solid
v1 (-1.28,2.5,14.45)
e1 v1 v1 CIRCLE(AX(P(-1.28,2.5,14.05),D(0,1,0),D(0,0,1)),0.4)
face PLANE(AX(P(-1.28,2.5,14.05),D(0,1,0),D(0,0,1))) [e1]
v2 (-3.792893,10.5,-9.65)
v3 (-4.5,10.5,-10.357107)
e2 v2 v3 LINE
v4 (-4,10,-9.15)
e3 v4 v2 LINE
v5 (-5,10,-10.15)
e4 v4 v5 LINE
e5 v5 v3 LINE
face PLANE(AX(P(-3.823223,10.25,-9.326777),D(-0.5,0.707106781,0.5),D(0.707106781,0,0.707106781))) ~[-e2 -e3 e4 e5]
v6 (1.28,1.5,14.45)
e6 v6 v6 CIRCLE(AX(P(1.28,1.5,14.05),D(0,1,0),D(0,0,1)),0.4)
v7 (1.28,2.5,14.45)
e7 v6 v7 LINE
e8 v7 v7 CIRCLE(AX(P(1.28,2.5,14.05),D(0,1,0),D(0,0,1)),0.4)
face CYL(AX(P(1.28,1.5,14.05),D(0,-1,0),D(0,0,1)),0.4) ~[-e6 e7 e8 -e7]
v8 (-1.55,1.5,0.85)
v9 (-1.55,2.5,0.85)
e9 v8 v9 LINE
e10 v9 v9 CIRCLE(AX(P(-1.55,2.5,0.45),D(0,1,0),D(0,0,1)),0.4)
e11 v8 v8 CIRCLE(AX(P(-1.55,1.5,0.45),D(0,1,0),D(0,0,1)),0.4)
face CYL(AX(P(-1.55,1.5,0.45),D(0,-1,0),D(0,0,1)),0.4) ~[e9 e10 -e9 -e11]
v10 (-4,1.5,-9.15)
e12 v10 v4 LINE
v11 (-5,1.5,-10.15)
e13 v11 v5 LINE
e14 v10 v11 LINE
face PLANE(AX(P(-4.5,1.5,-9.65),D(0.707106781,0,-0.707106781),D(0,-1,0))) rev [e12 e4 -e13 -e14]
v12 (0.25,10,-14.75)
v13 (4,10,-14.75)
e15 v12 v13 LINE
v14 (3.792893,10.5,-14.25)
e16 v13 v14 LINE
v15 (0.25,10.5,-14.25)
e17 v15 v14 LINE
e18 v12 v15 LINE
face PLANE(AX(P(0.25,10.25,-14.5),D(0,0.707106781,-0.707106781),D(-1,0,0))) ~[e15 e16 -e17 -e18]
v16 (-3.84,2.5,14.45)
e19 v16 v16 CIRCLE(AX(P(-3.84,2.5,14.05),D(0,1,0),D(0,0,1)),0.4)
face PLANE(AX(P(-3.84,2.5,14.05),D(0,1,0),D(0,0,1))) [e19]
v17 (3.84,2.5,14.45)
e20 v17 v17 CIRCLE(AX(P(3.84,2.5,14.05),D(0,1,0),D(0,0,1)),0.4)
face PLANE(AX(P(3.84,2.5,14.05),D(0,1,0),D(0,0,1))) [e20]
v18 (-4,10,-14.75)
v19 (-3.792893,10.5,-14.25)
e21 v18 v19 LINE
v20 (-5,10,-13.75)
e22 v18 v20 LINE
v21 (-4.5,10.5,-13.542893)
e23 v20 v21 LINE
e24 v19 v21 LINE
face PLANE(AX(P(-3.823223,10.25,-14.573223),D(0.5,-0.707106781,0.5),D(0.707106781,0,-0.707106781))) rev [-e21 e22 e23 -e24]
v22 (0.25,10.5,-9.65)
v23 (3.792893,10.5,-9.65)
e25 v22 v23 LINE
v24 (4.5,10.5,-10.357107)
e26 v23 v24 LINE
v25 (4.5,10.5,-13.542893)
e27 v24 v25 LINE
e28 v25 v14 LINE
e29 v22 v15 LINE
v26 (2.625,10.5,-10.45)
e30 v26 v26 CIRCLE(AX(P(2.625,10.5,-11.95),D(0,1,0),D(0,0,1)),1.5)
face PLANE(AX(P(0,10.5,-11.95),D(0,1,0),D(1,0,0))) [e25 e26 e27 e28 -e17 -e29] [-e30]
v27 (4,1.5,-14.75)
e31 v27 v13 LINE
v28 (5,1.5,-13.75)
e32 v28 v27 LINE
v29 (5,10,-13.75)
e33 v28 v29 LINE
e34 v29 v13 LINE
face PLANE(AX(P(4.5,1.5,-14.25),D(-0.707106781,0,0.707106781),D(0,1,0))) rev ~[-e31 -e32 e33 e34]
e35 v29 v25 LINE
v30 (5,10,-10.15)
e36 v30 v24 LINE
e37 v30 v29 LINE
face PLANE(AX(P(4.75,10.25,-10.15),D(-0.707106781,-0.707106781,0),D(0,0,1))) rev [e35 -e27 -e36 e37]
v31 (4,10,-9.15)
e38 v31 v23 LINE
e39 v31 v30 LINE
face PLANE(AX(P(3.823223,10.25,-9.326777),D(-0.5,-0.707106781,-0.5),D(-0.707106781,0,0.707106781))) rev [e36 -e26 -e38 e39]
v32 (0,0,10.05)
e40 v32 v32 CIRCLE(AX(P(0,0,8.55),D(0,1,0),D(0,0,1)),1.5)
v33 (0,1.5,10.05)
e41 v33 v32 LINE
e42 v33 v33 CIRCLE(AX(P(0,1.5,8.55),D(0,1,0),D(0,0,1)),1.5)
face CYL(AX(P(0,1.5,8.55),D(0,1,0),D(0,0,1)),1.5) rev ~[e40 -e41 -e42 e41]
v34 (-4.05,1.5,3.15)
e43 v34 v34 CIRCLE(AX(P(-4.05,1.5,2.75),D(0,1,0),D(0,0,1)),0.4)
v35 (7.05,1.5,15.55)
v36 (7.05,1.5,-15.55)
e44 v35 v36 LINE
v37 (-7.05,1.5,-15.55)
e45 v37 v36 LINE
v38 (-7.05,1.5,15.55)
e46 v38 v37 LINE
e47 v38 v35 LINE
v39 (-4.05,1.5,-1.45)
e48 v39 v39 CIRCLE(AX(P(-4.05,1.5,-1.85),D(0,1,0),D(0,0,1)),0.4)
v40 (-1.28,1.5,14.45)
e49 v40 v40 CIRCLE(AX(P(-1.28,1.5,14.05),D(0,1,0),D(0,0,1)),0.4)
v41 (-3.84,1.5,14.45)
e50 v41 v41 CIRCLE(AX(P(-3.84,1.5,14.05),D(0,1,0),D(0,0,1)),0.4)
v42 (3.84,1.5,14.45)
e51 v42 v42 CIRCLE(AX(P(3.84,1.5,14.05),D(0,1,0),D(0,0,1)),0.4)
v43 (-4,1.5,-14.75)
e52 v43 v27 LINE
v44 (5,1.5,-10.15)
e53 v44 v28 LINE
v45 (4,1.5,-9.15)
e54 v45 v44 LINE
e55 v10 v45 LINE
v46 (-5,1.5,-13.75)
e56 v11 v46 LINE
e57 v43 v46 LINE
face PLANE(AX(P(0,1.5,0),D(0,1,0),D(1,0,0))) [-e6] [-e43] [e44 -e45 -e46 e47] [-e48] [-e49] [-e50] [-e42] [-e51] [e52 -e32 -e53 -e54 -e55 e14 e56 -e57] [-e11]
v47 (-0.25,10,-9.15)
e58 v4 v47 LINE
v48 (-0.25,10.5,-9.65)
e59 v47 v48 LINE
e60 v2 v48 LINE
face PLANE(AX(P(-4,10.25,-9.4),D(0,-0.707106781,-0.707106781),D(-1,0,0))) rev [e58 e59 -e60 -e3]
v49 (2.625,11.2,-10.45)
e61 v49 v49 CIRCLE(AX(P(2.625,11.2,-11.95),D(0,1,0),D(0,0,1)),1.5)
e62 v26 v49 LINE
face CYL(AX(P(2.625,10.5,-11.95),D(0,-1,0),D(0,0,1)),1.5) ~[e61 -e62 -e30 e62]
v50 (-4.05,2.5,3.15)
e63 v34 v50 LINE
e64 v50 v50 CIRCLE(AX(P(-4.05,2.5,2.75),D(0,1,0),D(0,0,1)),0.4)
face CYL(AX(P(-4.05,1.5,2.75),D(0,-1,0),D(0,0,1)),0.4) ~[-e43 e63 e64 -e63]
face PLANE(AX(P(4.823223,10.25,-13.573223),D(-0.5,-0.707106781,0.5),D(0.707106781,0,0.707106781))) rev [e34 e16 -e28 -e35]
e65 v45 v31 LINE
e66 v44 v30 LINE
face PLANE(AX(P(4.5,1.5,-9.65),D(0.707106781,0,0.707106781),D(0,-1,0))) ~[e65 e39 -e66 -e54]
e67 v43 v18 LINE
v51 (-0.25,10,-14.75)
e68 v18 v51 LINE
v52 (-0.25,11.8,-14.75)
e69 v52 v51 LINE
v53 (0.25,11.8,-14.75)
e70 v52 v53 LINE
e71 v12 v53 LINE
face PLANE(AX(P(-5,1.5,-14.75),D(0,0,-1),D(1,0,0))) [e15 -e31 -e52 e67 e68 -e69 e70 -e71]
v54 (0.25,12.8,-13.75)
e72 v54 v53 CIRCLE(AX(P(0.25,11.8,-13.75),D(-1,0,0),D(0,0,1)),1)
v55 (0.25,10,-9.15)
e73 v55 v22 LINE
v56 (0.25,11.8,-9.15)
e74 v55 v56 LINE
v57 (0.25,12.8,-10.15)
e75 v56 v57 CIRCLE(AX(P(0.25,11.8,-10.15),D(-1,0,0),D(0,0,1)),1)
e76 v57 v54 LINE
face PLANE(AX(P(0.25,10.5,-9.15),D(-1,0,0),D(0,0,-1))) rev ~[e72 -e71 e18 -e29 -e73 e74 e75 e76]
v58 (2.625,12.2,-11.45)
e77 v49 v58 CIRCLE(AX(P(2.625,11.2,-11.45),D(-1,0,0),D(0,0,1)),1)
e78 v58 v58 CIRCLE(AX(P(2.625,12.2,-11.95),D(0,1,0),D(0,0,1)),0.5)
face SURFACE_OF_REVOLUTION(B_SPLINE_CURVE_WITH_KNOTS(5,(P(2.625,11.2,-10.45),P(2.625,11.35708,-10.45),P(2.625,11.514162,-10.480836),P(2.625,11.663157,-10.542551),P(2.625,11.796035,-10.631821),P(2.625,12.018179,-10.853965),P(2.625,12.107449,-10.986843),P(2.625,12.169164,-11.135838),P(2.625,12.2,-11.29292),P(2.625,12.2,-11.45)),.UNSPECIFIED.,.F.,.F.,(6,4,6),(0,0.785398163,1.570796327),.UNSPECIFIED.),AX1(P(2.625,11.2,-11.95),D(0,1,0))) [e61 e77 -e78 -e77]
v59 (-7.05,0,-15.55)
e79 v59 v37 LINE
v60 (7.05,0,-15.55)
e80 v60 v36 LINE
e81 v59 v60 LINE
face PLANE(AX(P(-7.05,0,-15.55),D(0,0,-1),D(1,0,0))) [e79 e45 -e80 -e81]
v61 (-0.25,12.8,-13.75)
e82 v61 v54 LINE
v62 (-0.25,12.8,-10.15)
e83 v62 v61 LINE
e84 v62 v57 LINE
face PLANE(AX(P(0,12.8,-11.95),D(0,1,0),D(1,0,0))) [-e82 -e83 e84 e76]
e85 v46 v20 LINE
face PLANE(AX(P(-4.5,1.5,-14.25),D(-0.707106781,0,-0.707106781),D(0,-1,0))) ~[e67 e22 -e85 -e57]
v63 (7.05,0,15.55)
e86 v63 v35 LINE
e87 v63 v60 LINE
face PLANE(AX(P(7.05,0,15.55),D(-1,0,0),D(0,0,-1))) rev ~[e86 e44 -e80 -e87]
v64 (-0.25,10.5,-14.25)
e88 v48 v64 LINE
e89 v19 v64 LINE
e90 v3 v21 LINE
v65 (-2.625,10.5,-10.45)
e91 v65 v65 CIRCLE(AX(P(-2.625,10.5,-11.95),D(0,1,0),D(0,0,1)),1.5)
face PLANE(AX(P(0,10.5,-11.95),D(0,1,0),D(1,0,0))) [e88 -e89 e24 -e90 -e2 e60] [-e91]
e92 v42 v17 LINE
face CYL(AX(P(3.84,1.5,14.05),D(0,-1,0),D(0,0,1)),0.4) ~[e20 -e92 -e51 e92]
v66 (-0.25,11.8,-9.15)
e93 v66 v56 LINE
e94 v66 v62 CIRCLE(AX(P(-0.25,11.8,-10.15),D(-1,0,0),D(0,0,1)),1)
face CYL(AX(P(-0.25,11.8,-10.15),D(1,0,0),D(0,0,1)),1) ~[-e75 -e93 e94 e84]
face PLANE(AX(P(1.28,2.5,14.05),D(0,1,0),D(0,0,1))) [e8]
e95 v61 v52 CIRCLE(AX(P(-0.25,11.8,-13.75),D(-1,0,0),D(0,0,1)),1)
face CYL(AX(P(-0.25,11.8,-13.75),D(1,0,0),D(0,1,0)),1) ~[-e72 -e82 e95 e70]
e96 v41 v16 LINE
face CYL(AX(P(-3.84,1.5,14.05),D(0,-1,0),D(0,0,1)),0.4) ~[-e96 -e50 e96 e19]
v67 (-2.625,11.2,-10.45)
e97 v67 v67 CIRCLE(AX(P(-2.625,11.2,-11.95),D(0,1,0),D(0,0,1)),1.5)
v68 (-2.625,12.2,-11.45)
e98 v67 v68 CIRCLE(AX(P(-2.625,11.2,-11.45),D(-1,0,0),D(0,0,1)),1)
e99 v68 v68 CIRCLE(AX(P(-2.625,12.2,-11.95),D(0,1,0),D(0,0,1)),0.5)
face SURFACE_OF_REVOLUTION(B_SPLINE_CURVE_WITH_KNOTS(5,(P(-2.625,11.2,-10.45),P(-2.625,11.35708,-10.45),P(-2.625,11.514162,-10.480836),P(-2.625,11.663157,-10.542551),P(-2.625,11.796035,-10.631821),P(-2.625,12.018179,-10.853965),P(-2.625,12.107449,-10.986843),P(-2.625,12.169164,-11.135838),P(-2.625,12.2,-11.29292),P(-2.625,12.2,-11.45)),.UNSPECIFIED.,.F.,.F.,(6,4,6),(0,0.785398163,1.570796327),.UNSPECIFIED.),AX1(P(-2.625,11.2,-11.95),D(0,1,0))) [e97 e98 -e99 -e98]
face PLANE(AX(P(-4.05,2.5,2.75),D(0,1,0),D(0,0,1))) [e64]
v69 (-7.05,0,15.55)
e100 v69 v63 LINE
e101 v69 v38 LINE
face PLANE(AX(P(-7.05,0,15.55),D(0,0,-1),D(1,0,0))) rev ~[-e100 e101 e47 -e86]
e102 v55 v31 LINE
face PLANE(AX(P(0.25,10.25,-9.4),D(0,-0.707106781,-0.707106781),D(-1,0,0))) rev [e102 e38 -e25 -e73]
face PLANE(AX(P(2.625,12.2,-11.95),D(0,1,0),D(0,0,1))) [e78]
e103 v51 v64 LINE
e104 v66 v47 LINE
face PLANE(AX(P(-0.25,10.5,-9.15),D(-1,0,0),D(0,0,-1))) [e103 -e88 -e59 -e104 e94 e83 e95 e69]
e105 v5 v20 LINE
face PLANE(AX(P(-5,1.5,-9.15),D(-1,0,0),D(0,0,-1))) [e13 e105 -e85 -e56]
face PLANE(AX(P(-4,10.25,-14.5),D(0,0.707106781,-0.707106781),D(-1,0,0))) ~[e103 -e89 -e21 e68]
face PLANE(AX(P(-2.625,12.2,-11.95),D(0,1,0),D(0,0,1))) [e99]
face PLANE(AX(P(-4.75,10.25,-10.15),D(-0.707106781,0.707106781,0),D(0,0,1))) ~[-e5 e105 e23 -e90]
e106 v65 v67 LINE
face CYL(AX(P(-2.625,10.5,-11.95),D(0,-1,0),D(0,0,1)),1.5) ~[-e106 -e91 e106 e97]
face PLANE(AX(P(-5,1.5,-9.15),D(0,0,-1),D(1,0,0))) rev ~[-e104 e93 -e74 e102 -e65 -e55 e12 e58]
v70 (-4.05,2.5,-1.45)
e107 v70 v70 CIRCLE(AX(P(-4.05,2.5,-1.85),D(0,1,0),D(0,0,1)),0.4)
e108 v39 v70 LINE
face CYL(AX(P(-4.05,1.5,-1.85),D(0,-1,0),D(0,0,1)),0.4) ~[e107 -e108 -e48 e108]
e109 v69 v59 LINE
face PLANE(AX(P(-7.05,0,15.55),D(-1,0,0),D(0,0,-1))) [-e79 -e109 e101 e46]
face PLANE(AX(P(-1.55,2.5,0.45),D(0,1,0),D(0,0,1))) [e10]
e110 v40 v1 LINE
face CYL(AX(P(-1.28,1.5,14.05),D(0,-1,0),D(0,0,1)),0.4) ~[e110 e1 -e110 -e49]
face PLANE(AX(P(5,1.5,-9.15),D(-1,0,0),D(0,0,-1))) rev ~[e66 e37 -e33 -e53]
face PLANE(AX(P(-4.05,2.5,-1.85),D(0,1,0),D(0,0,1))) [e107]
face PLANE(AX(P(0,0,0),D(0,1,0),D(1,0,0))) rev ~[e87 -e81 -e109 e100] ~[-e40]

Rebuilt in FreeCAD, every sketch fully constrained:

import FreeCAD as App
import Part
import Sketcher
from FreeCAD import Vector


def edges_at(feature, points):
    """Names of the edges that pass closest to the given points."""
    edges = feature.Shape.Edges
    near = lambda p: min(range(len(edges)), key=lambda i: edges[i].distToShape(Part.Vertex(*p))[0])
    return sorted({f"Edge{near(p) + 1}" for p in points})

doc = App.newDocument("Part")
body = doc.addObject("PartDesign::Body", "Body")

# Sketch on XZ plane
sketch1 = body.newObject("Sketcher::SketchObject", "Sketch")
sketch1.AttachmentSupport = (doc.getObject("XZ_Plane"), [""])
sketch1.MapMode = "FlatFace"
sketch1.addGeometry([
    Part.LineSegment(Vector(-7, -16, 0), Vector(-7, 16, 0)),
    Part.LineSegment(Vector(-7, 16, 0), Vector(7, 16, 0)),
    Part.LineSegment(Vector(7, 16, 0), Vector(7, -16, 0)),
    Part.LineSegment(Vector(7, -16, 0), Vector(-7, -16, 0)),
], False)
sketch1.addConstraint([
    Sketcher.Constraint("Coincident", 0, 2, 1, 1),
    Sketcher.Constraint("Coincident", 1, 2, 2, 1),
    Sketcher.Constraint("Coincident", 2, 2, 3, 1),
    Sketcher.Constraint("Coincident", 3, 2, 0, 1),
    Sketcher.Constraint("Vertical", 0),
    Sketcher.Constraint("Horizontal", 1),
    Sketcher.Constraint("Vertical", 2),
    Sketcher.Constraint("Horizontal", 3),
    Sketcher.Constraint("Symmetric", 0, 2, 2, 2, -1, 1),
    Sketcher.Constraint("DistanceX", 1, 1, 1, 2, 14.1),
    Sketcher.Constraint("DistanceY", 0, 1, 0, 2, 31.1),
])
pad1 = body.newObject("PartDesign::Pad", "Pad")
pad1.Profile = sketch1
pad1.Length = 1.5
pad1.Reversed = True

# Sketch on XZ plane
sketch2 = body.newObject("Sketcher::SketchObject", "Sketch001")
sketch2.AttachmentSupport = (doc.getObject("XZ_Plane"), [""])
sketch2.MapMode = "FlatFace"
sketch2.AttachmentOffset = App.Placement(Vector(0, 0, -1.5), App.Rotation())
sketch2.addGeometry([
    Part.LineSegment(Vector(-5, -15, 0), Vector(-5, -9, 0)),
    Part.LineSegment(Vector(-5, -9, 0), Vector(5, -9, 0)),
    Part.LineSegment(Vector(5, -9, 0), Vector(5, -15, 0)),
    Part.LineSegment(Vector(5, -15, 0), Vector(-5, -15, 0)),
], False)
sketch2.addConstraint([
    Sketcher.Constraint("Coincident", 0, 2, 1, 1),
    Sketcher.Constraint("Coincident", 1, 2, 2, 1),
    Sketcher.Constraint("Coincident", 2, 2, 3, 1),
    Sketcher.Constraint("Coincident", 3, 2, 0, 1),
    Sketcher.Constraint("Vertical", 0),
    Sketcher.Constraint("Horizontal", 1),
    Sketcher.Constraint("Vertical", 2),
    Sketcher.Constraint("Horizontal", 3),
    Sketcher.Constraint("DistanceX", 1, 1, 1, 2, 10.0),
    Sketcher.Constraint("DistanceY", 0, 1, 0, 2, 5.6),
    Sketcher.Constraint("DistanceX", 0, 2, -1, 1, 5.0),
    Sketcher.Constraint("DistanceY", 0, 2, -1, 1, 9.15),
])
pad2 = body.newObject("PartDesign::Pad", "Pad001")
pad2.Profile = sketch2
pad2.Length = 9
pad2.Reversed = True

# Sketch on XZ plane
sketch3 = body.newObject("Sketcher::SketchObject", "Sketch002")
sketch3.AttachmentSupport = (doc.getObject("XZ_Plane"), [""])
sketch3.MapMode = "FlatFace"
sketch3.AttachmentOffset = App.Placement(Vector(0, 0, -10.5), App.Rotation())
sketch3.addGeometry([
    Part.LineSegment(Vector(-0.2, -14.8, 0), Vector(-0.2, -9.2, 0)),
    Part.LineSegment(Vector(-0.2, -9.2, 0), Vector(0.2, -9.2, 0)),
    Part.LineSegment(Vector(0.2, -9.2, 0), Vector(0.2, -14.8, 0)),
    Part.LineSegment(Vector(0.2, -14.8, 0), Vector(-0.2, -14.8, 0)),
], False)
sketch3.addConstraint([
    Sketcher.Constraint("Coincident", 0, 2, 1, 1),
    Sketcher.Constraint("Coincident", 1, 2, 2, 1),
    Sketcher.Constraint("Coincident", 2, 2, 3, 1),
    Sketcher.Constraint("Coincident", 3, 2, 0, 1),
    Sketcher.Constraint("Vertical", 0),
    Sketcher.Constraint("Horizontal", 1),
    Sketcher.Constraint("Vertical", 2),
    Sketcher.Constraint("Horizontal", 3),
    Sketcher.Constraint("DistanceX", 1, 1, 1, 2, 0.5),
    Sketcher.Constraint("DistanceY", 0, 1, 0, 2, 5.6),
    Sketcher.Constraint("DistanceX", 0, 2, -1, 1, 0.25),
    Sketcher.Constraint("DistanceY", 0, 2, -1, 1, 9.15),
])
pad3 = body.newObject("PartDesign::Pad", "Pad002")
pad3.Profile = sketch3
pad3.Length = 2.3
pad3.Reversed = True

# Sketch on XZ plane
sketch4 = body.newObject("Sketcher::SketchObject", "Sketch003")
sketch4.AttachmentSupport = (doc.getObject("XZ_Plane"), [""])
sketch4.MapMode = "FlatFace"
sketch4.AttachmentOffset = App.Placement(Vector(0, 0, -10.5), App.Rotation())
sketch4.addGeometry([
    Part.Circle(Vector(-2.6, -11.9, 0), Vector(0, 0, 1), 1.5),
    Part.Circle(Vector(2.6, -11.9, 0), Vector(0, 0, 1), 1.5),
], False)
sketch4.addConstraint([
    Sketcher.Constraint("Equal", 0, 1),
    Sketcher.Constraint("Symmetric", 0, 3, 1, 3, -2),
    Sketcher.Constraint("Diameter", 0, 3.0),
    Sketcher.Constraint("DistanceY", 0, 3, -1, 1, 11.95),
    Sketcher.Constraint("DistanceX", 0, 3, 1, 3, 5.25),
])
pad4 = body.newObject("PartDesign::Pad", "Pad003")
pad4.Profile = sketch4
pad4.Length = 1.7
pad4.Reversed = True
doc.recompute()

chamfer = body.newObject("PartDesign::Chamfer", "Chamfer")
chamfer.Base = (pad4, edges_at(pad4, [
    (5, 6, -9.15),
    (5, 6, -14.75),
    (-5, 6, -14.75),
    (-5, 6, -9.15),
]))
chamfer.Size = 1
doc.recompute()

chamfer2 = body.newObject("PartDesign::Chamfer", "Chamfer001")
chamfer2.Base = (chamfer, edges_at(chamfer, [
    (-2.125, 10.5, -14.75),
    (2.125, 10.5, -9.15),
    (-5, 10.5, -11.95),
    (2.125, 10.5, -14.75),
    (-2.125, 10.5, -9.15),
    (-4.5, 10.5, -9.65),
    (-4.5, 10.5, -14.25),
    (5, 10.5, -11.95),
    (4.5, 10.5, -14.25),
    (4.5, 10.5, -9.65),
]))
chamfer2.Size = 0.5
doc.recompute()

fillet = body.newObject("PartDesign::Fillet", "Fillet")
fillet.Base = (chamfer2, edges_at(chamfer2, [(-2.625, 12.2, -13.45), (2.625, 12.2, -13.45)]))
fillet.Radius = 1
doc.recompute()

fillet2 = body.newObject("PartDesign::Fillet", "Fillet001")
fillet2.Base = (fillet, edges_at(fillet, [(0, 12.8, -14.75), (0, 12.8, -9.15)]))
fillet2.Radius = 1

# Sketch on XZ plane
sketch5 = body.newObject("Sketcher::SketchObject", "Sketch004")
sketch5.AttachmentSupport = (doc.getObject("XZ_Plane"), [""])
sketch5.MapMode = "FlatFace"
sketch5.AttachmentOffset = App.Placement(Vector(0, 0, -1.5), App.Rotation())
sketch5.addGeometry([
    Part.Circle(Vector(-4.05, -1.85, 0), Vector(0, 0, 1), 0.4),  # 0
    Part.Circle(Vector(-1.55, 0.45, 0), Vector(0, 0, 1), 0.4),  # 1
    Part.Circle(Vector(-4.05, 2.75, 0), Vector(0, 0, 1), 0.4),  # 2
    Part.Circle(Vector(-3.84, 14.05, 0), Vector(0, 0, 1), 0.4),  # 3
    Part.Circle(Vector(-1.28, 14.05, 0), Vector(0, 0, 1), 0.4),  # 4
    Part.Circle(Vector(1.28, 14.05, 0), Vector(0, 0, 1), 0.4),  # 5
    Part.Circle(Vector(3.84, 14.05, 0), Vector(0, 0, 1), 0.4),  # 6
], False)
sketch5.addConstraint([
    Sketcher.Constraint("Equal", 0, 1),
    Sketcher.Constraint("Equal", 1, 2),
    Sketcher.Constraint("Equal", 2, 3),
    Sketcher.Constraint("Equal", 3, 4),
    Sketcher.Constraint("Equal", 4, 5),
    Sketcher.Constraint("Equal", 5, 6),
    Sketcher.Constraint("Symmetric", 4, 3, 5, 3, -2),
    Sketcher.Constraint("Symmetric", 3, 3, 6, 3, -2),
    Sketcher.Constraint("Horizontal", 3, 3, 4, 3),
    Sketcher.Constraint("Vertical", 0, 3, 2, 3),
    Sketcher.Constraint("Diameter", 0, 0.8),
    Sketcher.Constraint("DistanceX", 0, 3, 1, 3, 2.5),
    Sketcher.Constraint("DistanceY", 0, 3, 1, 3, 2.3),
    Sketcher.Constraint("DistanceY", 1, 3, 2, 3, 2.3),
    Sketcher.Constraint("DistanceY", 2, 3, 3, 3, 11.3),
    Sketcher.Constraint("DistanceX", 0, 3, -1, 1, 4.05),
    Sketcher.Constraint("DistanceY", 0, 3, -1, 1, 1.85),
    Sketcher.Constraint("DistanceX", 3, 3, -1, 1, 3.84),
    Sketcher.Constraint("DistanceX", 4, 3, -1, 1, 1.28),
])
pad5 = body.newObject("PartDesign::Pad", "Pad004")
pad5.Profile = sketch5
pad5.Length = 1
pad5.Reversed = True

# Sketch on XZ plane
sketch6 = body.newObject("Sketcher::SketchObject", "Sketch005")
sketch6.AttachmentSupport = (doc.getObject("XZ_Plane"), [""])
sketch6.MapMode = "FlatFace"
sketch6.AttachmentOffset = App.Placement(Vector(0, 0, -1.5), App.Rotation())
sketch6.addGeometry(Part.Circle(Vector(0, 8.6, 0), Vector(0, 0, 1), 1.5), False)
sketch6.addConstraint([
    Sketcher.Constraint("PointOnObject", 0, 3, -2),
    Sketcher.Constraint("Diameter", 0, 3.0),
    Sketcher.Constraint("DistanceY", -1, 1, 0, 3, 8.55),
])
pocket1 = body.newObject("PartDesign::Pocket", "Pocket")
pocket1.Profile = sketch6
pocket1.Length = 11
pocket1.Reversed = True

doc.recompute()
